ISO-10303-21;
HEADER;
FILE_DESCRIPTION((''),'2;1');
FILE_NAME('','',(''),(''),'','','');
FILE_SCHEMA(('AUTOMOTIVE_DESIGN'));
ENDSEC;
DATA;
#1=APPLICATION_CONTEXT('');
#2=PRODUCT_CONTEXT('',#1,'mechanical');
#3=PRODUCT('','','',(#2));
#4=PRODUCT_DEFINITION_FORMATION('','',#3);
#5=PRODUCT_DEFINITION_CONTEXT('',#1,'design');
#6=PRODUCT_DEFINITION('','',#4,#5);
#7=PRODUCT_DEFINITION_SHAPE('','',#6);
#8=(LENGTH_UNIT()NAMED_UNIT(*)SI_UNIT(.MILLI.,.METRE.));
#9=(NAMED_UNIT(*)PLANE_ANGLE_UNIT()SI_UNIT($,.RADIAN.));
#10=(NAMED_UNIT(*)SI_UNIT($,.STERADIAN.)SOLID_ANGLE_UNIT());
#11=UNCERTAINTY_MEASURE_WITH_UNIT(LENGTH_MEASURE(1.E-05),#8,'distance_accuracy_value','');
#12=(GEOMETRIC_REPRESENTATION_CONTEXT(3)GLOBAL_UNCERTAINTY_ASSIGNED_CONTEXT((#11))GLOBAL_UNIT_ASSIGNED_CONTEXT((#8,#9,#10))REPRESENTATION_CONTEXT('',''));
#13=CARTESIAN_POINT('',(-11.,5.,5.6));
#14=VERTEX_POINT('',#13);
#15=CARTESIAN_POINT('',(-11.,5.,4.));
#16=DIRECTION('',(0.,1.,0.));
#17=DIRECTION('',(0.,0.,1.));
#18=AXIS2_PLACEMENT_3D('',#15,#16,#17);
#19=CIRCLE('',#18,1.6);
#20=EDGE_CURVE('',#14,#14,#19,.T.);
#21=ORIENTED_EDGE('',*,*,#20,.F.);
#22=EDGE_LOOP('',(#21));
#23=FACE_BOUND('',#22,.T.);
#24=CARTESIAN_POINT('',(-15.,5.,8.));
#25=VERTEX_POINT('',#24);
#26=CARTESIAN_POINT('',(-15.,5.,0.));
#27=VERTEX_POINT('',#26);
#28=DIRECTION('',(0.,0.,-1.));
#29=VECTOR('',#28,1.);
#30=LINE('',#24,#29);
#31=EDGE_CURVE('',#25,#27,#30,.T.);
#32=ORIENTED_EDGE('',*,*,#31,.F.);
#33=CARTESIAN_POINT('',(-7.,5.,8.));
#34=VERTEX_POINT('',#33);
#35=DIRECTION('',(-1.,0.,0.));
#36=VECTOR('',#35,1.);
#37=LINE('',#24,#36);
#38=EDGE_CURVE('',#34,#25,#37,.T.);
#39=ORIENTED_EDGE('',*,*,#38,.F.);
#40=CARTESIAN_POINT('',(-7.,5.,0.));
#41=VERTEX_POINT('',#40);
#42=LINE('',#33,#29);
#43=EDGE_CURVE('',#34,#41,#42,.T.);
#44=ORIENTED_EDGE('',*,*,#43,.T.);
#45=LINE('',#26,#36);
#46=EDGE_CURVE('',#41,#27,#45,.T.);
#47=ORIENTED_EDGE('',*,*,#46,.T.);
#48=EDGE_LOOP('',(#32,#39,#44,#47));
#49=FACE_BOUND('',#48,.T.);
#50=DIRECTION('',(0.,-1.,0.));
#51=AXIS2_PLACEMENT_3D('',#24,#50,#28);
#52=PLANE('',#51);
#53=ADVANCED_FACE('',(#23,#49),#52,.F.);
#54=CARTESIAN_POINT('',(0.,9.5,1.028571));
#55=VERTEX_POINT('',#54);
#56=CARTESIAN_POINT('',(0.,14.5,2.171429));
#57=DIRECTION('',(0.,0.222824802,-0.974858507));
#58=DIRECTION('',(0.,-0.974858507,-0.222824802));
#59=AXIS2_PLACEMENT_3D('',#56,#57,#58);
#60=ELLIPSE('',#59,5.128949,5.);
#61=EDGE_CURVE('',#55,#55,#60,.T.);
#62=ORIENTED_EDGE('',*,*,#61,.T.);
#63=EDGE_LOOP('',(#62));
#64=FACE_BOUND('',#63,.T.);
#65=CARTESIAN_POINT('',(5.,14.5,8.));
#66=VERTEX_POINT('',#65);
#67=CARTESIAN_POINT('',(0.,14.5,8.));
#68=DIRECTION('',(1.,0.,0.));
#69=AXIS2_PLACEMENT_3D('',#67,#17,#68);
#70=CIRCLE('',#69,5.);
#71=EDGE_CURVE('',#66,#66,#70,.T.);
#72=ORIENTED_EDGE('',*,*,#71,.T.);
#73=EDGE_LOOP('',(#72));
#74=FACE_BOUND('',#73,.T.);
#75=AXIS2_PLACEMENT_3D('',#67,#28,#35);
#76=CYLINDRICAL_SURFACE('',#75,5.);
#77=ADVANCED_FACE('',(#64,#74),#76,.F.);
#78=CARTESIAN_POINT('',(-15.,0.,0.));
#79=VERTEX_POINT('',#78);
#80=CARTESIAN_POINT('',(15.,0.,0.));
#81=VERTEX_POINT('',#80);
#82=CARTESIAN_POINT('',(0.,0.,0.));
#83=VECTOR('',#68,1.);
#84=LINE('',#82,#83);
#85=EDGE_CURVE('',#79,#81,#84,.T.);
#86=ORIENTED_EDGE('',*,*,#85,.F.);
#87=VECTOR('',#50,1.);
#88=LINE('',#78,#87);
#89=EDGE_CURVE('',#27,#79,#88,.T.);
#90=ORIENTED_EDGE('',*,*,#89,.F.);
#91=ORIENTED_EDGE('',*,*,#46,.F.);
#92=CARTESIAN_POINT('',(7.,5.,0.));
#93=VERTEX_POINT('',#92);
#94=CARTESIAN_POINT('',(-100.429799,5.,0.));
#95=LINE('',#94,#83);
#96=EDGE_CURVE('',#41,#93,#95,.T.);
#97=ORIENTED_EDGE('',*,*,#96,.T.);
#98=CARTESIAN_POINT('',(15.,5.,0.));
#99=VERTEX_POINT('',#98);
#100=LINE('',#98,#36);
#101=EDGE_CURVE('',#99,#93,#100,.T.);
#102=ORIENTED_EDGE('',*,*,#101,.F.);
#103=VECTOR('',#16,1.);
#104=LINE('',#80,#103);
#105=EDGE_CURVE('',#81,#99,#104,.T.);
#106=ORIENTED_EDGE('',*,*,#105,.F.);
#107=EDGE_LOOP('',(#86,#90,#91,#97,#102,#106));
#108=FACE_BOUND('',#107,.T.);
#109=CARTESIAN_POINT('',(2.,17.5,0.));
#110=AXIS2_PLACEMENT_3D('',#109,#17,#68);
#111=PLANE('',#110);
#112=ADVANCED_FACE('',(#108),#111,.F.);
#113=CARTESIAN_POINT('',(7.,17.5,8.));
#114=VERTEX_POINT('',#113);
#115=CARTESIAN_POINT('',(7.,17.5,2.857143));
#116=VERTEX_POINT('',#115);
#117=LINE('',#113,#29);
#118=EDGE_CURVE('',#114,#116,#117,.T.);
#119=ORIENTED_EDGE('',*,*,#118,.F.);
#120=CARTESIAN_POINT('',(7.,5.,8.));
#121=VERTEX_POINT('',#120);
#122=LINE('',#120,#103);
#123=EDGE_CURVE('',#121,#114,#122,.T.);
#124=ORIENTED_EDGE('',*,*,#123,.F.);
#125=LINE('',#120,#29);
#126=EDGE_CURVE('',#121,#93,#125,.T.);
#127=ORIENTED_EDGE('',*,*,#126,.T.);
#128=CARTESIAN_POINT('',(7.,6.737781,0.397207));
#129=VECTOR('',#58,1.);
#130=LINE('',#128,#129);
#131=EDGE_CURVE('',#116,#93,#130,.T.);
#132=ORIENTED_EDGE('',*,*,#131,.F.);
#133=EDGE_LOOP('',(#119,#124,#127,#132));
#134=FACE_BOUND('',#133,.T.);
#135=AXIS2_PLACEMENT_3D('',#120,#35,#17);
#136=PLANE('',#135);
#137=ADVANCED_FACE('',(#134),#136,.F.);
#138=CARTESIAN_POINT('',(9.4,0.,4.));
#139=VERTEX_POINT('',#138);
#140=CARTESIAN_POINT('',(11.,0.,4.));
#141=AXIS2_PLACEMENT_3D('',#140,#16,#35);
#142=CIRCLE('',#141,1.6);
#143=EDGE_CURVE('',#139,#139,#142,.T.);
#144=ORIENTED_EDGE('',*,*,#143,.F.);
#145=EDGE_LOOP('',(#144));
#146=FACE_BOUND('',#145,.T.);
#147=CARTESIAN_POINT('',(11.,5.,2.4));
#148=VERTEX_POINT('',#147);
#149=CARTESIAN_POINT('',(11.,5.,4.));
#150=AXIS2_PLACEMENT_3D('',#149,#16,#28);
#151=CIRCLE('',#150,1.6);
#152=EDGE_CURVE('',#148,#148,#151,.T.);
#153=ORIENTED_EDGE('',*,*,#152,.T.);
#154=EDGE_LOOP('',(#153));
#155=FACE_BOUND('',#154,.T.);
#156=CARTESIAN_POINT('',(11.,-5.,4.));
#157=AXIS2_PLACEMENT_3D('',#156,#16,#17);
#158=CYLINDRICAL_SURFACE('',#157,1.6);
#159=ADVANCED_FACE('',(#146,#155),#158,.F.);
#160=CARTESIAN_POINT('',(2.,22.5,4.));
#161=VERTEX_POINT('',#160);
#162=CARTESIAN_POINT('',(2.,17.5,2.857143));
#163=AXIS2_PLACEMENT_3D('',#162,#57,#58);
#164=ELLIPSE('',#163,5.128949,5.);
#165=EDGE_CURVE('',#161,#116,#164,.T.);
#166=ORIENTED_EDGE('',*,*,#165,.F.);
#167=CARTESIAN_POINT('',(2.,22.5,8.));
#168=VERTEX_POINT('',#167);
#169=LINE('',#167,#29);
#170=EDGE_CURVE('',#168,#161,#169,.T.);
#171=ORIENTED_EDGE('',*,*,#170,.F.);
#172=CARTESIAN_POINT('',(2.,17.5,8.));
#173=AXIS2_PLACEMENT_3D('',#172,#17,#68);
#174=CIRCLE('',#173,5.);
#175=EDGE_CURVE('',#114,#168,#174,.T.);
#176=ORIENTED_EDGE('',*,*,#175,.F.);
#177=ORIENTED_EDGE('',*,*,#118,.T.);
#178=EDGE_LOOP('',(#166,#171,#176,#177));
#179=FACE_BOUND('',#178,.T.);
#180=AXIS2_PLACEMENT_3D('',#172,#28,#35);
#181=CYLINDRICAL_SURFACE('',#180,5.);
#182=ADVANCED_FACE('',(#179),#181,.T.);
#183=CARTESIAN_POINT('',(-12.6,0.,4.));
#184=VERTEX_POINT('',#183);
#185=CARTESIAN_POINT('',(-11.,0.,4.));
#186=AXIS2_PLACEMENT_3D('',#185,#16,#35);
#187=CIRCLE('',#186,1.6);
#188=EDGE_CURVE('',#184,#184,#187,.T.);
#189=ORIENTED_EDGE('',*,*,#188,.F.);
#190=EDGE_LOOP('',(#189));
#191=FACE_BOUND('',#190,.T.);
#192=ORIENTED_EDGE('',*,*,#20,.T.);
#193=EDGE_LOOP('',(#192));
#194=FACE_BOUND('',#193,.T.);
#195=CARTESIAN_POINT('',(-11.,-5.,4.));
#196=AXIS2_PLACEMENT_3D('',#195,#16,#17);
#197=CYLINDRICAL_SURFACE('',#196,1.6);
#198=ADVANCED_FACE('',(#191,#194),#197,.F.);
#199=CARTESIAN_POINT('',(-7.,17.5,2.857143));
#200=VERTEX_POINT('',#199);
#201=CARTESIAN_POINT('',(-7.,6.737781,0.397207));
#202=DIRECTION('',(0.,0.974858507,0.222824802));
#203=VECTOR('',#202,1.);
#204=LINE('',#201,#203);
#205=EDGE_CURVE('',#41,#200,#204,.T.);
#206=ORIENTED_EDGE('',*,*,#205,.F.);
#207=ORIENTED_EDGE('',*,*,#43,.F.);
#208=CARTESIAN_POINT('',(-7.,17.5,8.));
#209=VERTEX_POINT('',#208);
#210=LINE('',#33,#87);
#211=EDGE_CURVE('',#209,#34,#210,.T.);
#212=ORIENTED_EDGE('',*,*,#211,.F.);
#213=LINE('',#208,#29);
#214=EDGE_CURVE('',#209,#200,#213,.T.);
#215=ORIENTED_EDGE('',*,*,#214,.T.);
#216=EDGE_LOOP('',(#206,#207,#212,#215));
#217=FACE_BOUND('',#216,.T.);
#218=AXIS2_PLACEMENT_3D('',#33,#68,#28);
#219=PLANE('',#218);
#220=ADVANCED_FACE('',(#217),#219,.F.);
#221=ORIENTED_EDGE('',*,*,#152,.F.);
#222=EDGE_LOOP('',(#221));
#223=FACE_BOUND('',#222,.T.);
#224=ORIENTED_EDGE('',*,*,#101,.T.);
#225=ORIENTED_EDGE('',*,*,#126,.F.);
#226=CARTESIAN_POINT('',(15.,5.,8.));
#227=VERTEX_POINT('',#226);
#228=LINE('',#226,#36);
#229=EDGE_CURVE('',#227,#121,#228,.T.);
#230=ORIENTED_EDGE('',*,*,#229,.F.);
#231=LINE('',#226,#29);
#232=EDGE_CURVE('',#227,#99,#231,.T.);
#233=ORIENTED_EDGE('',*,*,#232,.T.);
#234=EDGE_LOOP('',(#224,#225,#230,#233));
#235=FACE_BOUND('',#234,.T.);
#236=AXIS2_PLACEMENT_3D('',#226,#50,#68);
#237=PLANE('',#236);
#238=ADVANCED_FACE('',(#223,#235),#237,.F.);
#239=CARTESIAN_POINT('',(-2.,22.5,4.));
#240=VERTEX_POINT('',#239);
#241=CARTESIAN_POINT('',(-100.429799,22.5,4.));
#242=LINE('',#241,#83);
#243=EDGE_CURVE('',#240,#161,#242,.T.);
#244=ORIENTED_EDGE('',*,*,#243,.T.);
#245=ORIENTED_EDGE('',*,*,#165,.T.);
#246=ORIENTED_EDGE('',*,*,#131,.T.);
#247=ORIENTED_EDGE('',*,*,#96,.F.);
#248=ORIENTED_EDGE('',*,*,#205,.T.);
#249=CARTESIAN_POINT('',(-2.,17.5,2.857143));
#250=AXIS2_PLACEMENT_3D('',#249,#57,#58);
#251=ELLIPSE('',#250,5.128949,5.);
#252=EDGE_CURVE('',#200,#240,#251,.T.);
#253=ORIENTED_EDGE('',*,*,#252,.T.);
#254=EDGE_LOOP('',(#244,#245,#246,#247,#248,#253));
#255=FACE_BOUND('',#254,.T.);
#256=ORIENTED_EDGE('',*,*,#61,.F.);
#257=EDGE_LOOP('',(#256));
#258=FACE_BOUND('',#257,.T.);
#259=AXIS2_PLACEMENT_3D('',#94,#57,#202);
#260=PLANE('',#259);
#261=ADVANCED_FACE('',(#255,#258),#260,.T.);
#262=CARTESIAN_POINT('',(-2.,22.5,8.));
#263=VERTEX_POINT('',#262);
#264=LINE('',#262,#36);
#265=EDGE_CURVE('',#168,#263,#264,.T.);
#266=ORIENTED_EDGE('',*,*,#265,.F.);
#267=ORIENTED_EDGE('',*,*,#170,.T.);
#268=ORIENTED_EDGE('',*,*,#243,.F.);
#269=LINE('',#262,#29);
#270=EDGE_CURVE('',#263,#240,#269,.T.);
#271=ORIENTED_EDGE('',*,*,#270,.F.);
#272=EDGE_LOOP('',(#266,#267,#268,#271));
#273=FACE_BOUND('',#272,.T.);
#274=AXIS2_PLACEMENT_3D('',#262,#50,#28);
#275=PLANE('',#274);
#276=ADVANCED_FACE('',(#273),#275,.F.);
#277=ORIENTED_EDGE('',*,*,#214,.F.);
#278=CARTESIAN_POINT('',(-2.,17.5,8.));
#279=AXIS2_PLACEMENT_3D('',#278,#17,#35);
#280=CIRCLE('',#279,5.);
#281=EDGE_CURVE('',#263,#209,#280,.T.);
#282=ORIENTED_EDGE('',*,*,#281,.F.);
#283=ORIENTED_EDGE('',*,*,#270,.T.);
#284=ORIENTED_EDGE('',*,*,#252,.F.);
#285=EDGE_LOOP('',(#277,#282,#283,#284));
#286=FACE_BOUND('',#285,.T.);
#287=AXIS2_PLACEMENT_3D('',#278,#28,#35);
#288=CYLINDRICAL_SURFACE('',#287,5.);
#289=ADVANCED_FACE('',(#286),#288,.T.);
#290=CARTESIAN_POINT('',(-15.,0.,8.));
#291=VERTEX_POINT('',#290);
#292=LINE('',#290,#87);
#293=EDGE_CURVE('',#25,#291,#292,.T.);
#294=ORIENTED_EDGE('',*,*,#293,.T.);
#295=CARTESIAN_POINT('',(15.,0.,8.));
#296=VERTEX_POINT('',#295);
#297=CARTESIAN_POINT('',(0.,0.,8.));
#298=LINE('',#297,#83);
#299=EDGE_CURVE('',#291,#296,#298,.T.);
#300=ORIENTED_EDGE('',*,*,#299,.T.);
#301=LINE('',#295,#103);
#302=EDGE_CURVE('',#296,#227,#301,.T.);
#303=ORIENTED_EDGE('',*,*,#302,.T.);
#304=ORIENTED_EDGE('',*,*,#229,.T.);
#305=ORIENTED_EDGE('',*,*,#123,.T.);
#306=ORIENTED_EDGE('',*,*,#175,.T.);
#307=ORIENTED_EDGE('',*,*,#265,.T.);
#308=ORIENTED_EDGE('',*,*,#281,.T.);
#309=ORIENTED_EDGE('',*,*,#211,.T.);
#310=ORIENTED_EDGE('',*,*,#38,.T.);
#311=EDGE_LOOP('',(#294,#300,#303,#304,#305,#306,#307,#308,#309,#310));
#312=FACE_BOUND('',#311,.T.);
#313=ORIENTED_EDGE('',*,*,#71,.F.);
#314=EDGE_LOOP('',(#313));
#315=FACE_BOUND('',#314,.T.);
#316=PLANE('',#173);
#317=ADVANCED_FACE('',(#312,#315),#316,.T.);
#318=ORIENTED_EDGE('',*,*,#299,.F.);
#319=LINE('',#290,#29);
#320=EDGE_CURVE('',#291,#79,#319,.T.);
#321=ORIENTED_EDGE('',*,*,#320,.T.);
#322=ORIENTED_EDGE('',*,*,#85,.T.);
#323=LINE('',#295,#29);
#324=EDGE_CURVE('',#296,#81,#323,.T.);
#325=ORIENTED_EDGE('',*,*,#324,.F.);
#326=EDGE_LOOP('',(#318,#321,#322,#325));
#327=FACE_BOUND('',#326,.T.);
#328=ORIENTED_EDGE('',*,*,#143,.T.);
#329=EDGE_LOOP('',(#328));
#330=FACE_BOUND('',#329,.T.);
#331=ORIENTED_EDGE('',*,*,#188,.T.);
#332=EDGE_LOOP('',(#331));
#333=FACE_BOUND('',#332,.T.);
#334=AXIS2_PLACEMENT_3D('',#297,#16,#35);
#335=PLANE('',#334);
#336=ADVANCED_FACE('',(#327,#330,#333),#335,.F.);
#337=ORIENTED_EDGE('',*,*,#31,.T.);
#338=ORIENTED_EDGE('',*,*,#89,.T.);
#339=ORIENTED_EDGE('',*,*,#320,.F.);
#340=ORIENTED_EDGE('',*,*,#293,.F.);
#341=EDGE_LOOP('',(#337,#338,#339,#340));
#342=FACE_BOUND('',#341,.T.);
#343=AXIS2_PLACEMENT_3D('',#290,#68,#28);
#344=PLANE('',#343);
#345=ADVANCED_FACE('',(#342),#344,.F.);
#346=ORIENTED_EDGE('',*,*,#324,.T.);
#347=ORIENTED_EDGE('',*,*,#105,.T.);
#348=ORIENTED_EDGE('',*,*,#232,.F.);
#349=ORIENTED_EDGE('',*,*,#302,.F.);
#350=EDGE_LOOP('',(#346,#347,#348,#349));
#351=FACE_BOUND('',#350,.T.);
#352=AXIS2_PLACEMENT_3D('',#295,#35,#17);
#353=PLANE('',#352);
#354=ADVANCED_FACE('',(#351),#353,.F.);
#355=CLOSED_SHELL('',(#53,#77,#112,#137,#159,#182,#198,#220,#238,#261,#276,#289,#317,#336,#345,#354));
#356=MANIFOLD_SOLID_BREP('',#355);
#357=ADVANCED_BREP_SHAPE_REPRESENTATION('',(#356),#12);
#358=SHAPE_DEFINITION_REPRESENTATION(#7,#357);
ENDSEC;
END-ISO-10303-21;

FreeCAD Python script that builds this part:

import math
import FreeCAD as App
import Part
import Sketcher

V = App.Vector

doc = App.newDocument("Part")
params = doc.addObject("Spreadsheet::Sheet", "Params")
for row, (alias, value) in enumerate([
    ("sketch1_diameter", "10 mm"),
    ("sketch1_width", "30 mm"),
    ("sketch1_width2", "8 mm"),
    ("sketch1_height", "5 mm"),
    ("sketch1_height2", "12.5 mm"),
    ("pad1_length", "8 mm"),
    ("sketch2_diameter", "3.2 mm"),
    ("pocket1_length", "10 mm"),
], start=1):
    params.set(f"A{row}", alias)
    params.set(f"B{row}", "=" + value)
    params.setAlias(f"B{row}", alias)

body = doc.addObject("PartDesign::Body", "Body")

sketch1 = body.newObject("Sketcher::SketchObject", "Sketch")
sketch1.AttachmentSupport = (doc.getObject("XY_Plane"), [""])
sketch1.MapMode = "FlatFace"
sketch1.addGeometry([
    Part.LineSegment(V(-15, 5, 0), V(-15, 0, 0)),
    Part.LineSegment(V(-15, 0, 0), V(15, 0, 0)),
    Part.LineSegment(V(15, 0, 0), V(15, 5, 0)),
    Part.LineSegment(V(15, 5, 0), V(7, 5, 0)),
    Part.LineSegment(V(7, 5, 0), V(7, 17.5, 0)),
    Part.ArcOfCircle(Part.Circle(V(2, 17.5, 0), V(0, 0, 1), 5), math.radians(0), math.radians(90)),
    Part.LineSegment(V(2, 22.5, 0), V(-2, 22.5, 0)),
    Part.ArcOfCircle(Part.Circle(V(-2, 17.5, 0), V(0, 0, 1), 5), math.radians(90), math.radians(180)),
    Part.LineSegment(V(-7, 17.5, 0), V(-7, 5, 0)),
    Part.LineSegment(V(-7, 5, 0), V(-15, 5, 0)),
    Part.Circle(V(0, 14.5, 0), V(0, 0, 1), 5),
], False)
sketch1.addConstraint([
    Sketcher.Constraint("Coincident", 0, 2, 1, 1),
    Sketcher.Constraint("Coincident", 1, 2, 2, 1),
    Sketcher.Constraint("Coincident", 2, 2, 3, 1),
    Sketcher.Constraint("Coincident", 3, 2, 4, 1),
    Sketcher.Constraint("Tangent", 4, 2, 5, 1),
    Sketcher.Constraint("Tangent", 5, 2, 6, 1),
    Sketcher.Constraint("Tangent", 6, 2, 7, 1),
    Sketcher.Constraint("Tangent", 7, 2, 8, 1),
    Sketcher.Constraint("Coincident", 8, 2, 9, 1),
    Sketcher.Constraint("Coincident", 9, 2, 0, 1),
    Sketcher.Constraint("Vertical", 0),
    Sketcher.Constraint("Horizontal", 1),
    Sketcher.Constraint("Vertical", 2),
    Sketcher.Constraint("Horizontal", 3),
    Sketcher.Constraint("Vertical", 4),
    Sketcher.Constraint("Horizontal", 6),
    Sketcher.Constraint("Vertical", 8),
    Sketcher.Constraint("Horizontal", 9),
    Sketcher.Constraint("Equal", 5, 7),
    Sketcher.Constraint("Equal", 7, 10),
    Sketcher.Constraint("Symmetric", 0, 2, 1, 2, -1, 1),
    Sketcher.Constraint("Symmetric", 3, 2, 8, 2, -2),
    Sketcher.Constraint("PointOnObject", 10, 3, -2),
    Sketcher.Constraint("Diameter", 10, 10.0),
    Sketcher.Constraint("DistanceX", 1, 1, 1, 2, 30.0),
    Sketcher.Constraint("DistanceX", 3, 2, 3, 1, 8.0),
    Sketcher.Constraint("DistanceY", 0, 2, 0, 1, 5.0),
    Sketcher.Constraint("DistanceY", 4, 1, 4, 2, 12.5),
    Sketcher.Constraint("DistanceY", 10, 3, 5, 3, 3.0),
])
sketch1.setExpression("Constraints[23]", "Params.sketch1_diameter")
sketch1.setExpression("Constraints[24]", "Params.sketch1_width")
sketch1.setExpression("Constraints[25]", "Params.sketch1_width2")
sketch1.setExpression("Constraints[26]", "Params.sketch1_height")
sketch1.setExpression("Constraints[27]", "Params.sketch1_height2")
pad1 = body.newObject("PartDesign::Pad", "Pad")
pad1.Profile = sketch1
pad1.setExpression("Length", "Params.pad1_length")

sketch2 = body.newObject("Sketcher::SketchObject", "Sketch001")
sketch2.AttachmentSupport = (doc.getObject("XZ_Plane"), [""])
sketch2.MapMode = "FlatFace"
sketch2.AttachmentOffset = App.Placement(V(0, 0, -5), App.Rotation())
sketch2.addGeometry([
    Part.Circle(V(-11, 4, 0), V(0, 0, 1), 1.6),
    Part.Circle(V(11, 4, 0), V(0, 0, 1), 1.6),
], False)
sketch2.addConstraint([
    Sketcher.Constraint("Equal", 0, 1),
    Sketcher.Constraint("Symmetric", 0, 3, 1, 3, -2),
    Sketcher.Constraint("Diameter", 0, 3.2),
    Sketcher.Constraint("DistanceX", 0, 3, -1, 1, 11.0),
    Sketcher.Constraint("DistanceY", -1, 1, 0, 3, 4.0),
])
sketch2.setExpression("Constraints[2]", "Params.sketch2_diameter")
pocket1 = body.newObject("PartDesign::Pocket", "Pocket")
pocket1.Profile = sketch2
pocket1.setExpression("Length", "Params.pocket1_length")
pocket1.Reversed = True

sketch3 = body.newObject("Sketcher::SketchObject", "Sketch002")
sketch3.AttachmentSupport = (doc.getObject("YZ_Plane"), [""])
sketch3.MapMode = "FlatFace"
sketch3.AttachmentOffset = App.Placement(V(0, 0, -15), App.Rotation())
sketch3.addGeometry([
    Part.LineSegment(V(-49, -12, 0), V(5, 0, 0)),
    Part.LineSegment(V(5, 0, 0), V(22, 4, 0)),
    Part.LineSegment(V(22, 4, 0), V(77, 16, 0)),
    Part.LineSegment(V(77, 16, 0), V(102, -92, 0)),
    Part.LineSegment(V(102, -92, 0), V(-24, -121, 0)),
    Part.LineSegment(V(-24, -121, 0), V(-49, -12, 0)),
], False)
sketch3.addConstraint([
    Sketcher.Constraint("Coincident", 0, 2, 1, 1),
    Sketcher.Constraint("Coincident", 1, 2, 2, 1),
    Sketcher.Constraint("Coincident", 2, 2, 3, 1),
    Sketcher.Constraint("Coincident", 3, 2, 4, 1),
    Sketcher.Constraint("Coincident", 4, 2, 5, 1),
    Sketcher.Constraint("Coincident", 5, 2, 0, 1),
    Sketcher.Constraint("PointOnObject", 0, 2, -1),
    Sketcher.Constraint("Parallel", 0, 1),
    Sketcher.Constraint("Parallel", 1, 2),
    Sketcher.Constraint("Perpendicular", 2, 3),
    Sketcher.Constraint("Perpendicular", 3, 4),
    Sketcher.Constraint("Perpendicular", 4, 5),
    Sketcher.Constraint("Equal", 0, 2),
    Sketcher.Constraint("DistanceX", -1, 1, 0, 2, 5.0),
    Sketcher.Constraint("DistanceY", -1, 1, 1, 2, 4.0),
    Sketcher.Constraint("DistanceX", -1, 1, 1, 2, 22.5),
    Sketcher.Constraint("DistanceY", 4, 2, -1, 1, 121.022701),
    Sketcher.Constraint("Distance", 0, 55.70558),
])
pocket2 = body.newObject("PartDesign::Pocket", "Pocket001")
pocket2.Profile = sketch3
pocket2.Type = "ThroughAll"
pocket2.Midplane = True

doc.recompute()
